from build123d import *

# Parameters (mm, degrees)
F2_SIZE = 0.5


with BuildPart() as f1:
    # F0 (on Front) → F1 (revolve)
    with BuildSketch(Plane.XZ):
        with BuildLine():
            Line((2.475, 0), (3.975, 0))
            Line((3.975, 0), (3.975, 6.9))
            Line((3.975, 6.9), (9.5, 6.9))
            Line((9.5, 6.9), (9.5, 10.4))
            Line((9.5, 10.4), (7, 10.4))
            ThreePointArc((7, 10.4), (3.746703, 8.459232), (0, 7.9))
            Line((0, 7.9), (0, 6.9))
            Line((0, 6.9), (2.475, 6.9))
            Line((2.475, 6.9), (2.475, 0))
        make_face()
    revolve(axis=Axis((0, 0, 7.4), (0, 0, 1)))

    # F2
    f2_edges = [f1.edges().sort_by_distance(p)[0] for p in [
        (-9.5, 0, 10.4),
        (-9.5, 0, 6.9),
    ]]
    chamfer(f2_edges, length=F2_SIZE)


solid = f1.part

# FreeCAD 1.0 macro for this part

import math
import FreeCAD as App
import Part
import Sketcher

V = App.Vector


def edges_at(feature, points):
    """Names of the edges that pass closest to the given points."""
    edges = feature.Shape.Edges
    near = lambda p: min(range(len(edges)), key=lambda i: edges[i].distToShape(Part.Vertex(*p))[0])
    return sorted({f"Edge{near(p) + 1}" for p in points})

doc = App.newDocument("Part")
params = doc.addObject("Spreadsheet::Sheet", "Params")
for row, (alias, value) in enumerate([
    ("sketch1_height", "1 mm"),
    ("sketch1_width", "1.5 mm"),
    ("sketch1_width2", "2.5 mm"),
    ("sketch1_height2", "6.9 mm"),
    ("sketch1_height3", "3.5 mm"),
    ("revolution_angle", "360 deg"),
    ("chamfer_size", "0.5 mm"),
], start=1):
    params.set(f"A{row}", alias)
    params.set(f"B{row}", "=" + value)
    params.setAlias(f"B{row}", alias)

body = doc.addObject("PartDesign::Body", "Body")

# Sketch on XZ plane
sketch1 = body.newObject("Sketcher::SketchObject", "Sketch")
sketch1.AttachmentSupport = (doc.getObject("XZ_Plane"), [""])
sketch1.MapMode = "FlatFace"
sketch1.addGeometry([
    Part.LineSegment(V(2.475, 0, 0), V(3.975, 0, 0)),  # 0
    Part.LineSegment(V(3.975, 0, 0), V(3.975, 6.9, 0)),  # 1
    Part.LineSegment(V(3.975, 6.9, 0), V(9.5, 6.9, 0)),  # 2
    Part.LineSegment(V(9.5, 6.9, 0), V(9.5, 10.4, 0)),  # 3
    Part.LineSegment(V(9.5, 10.4, 0), V(7, 10.4, 0)),  # 4
    Part.ArcOfCircle(Part.Circle(V(0.456587, 17.671558, 0), V(0, 0, 1), 9.782219), math.radians(-92.675261), math.radians(-48.017091)),  # 5
    Part.LineSegment(V(0, 7.9, 0), V(0, 6.9, 0)),  # 6
    Part.LineSegment(V(0, 6.9, 0), V(2.475, 6.9, 0)),  # 7
    Part.LineSegment(V(2.475, 6.9, 0), V(2.475, 0, 0)),  # 8
], False)
sketch1.addConstraint([
    Sketcher.Constraint("Coincident", 0, 2, 1, 1),
    Sketcher.Constraint("Coincident", 1, 2, 2, 1),
    Sketcher.Constraint("Coincident", 2, 2, 3, 1),
    Sketcher.Constraint("Coincident", 3, 2, 4, 1),
    Sketcher.Constraint("Coincident", 4, 2, 5, 2),
    Sketcher.Constraint("Coincident", 5, 1, 6, 1),
    Sketcher.Constraint("Coincident", 6, 2, 7, 1),
    Sketcher.Constraint("Coincident", 7, 2, 8, 1),
    Sketcher.Constraint("Coincident", 8, 2, 0, 1),
    Sketcher.Constraint("Horizontal", 0),
    Sketcher.Constraint("Vertical", 1),
    Sketcher.Constraint("Horizontal", 2),
    Sketcher.Constraint("Vertical", 3),
    Sketcher.Constraint("Horizontal", 4),
    Sketcher.Constraint("Vertical", 6),
    Sketcher.Constraint("Horizontal", 7),
    Sketcher.Constraint("Vertical", 8),
    Sketcher.Constraint("PointOnObject", 0, 2, -1),
    Sketcher.Constraint("PointOnObject", 5, 1, -2),
    Sketcher.Constraint("Horizontal", 2, 2, 6, 2),
    Sketcher.Constraint("DistanceY", 6, 2, 6, 1, 1.0),
    Sketcher.Constraint("DistanceX", 0, 1, 0, 2, 1.5),
    Sketcher.Constraint("DistanceX", 4, 2, 4, 1, 2.5),
    Sketcher.Constraint("DistanceY", 1, 1, 1, 2, 6.9),
    Sketcher.Constraint("DistanceY", 3, 1, 3, 2, 3.5),
    Sketcher.Constraint("DistanceX", -1, 1, 4, 2, 7.0),
    Sketcher.Constraint("DistanceX", 2, 1, 2, 2, 5.525),
    Sketcher.Constraint("Radius", 5, 9.782219),
])
sketch1.setExpression("Constraints[20]", "Params.sketch1_height")
sketch1.setExpression("Constraints[21]", "Params.sketch1_width")
sketch1.setExpression("Constraints[22]", "Params.sketch1_width2")
sketch1.setExpression("Constraints[23]", "Params.sketch1_height2")
sketch1.setExpression("Constraints[24]", "Params.sketch1_height3")
revolution = body.newObject("PartDesign::Revolution", "Revolution")
revolution.Profile = sketch1
revolution.ReferenceAxis = (sketch1, ["V_Axis"])
revolution.setExpression("Angle", "Params.revolution_angle")
doc.recompute()

chamfer = body.newObject("PartDesign::Chamfer", "Chamfer")
chamfer.Base = (revolution, edges_at(revolution, [(-9.5, 0, 10.4), (-9.5, 0, 6.9)]))
chamfer.setExpression("Size", "Params.chamfer_size")

doc.recompute()
